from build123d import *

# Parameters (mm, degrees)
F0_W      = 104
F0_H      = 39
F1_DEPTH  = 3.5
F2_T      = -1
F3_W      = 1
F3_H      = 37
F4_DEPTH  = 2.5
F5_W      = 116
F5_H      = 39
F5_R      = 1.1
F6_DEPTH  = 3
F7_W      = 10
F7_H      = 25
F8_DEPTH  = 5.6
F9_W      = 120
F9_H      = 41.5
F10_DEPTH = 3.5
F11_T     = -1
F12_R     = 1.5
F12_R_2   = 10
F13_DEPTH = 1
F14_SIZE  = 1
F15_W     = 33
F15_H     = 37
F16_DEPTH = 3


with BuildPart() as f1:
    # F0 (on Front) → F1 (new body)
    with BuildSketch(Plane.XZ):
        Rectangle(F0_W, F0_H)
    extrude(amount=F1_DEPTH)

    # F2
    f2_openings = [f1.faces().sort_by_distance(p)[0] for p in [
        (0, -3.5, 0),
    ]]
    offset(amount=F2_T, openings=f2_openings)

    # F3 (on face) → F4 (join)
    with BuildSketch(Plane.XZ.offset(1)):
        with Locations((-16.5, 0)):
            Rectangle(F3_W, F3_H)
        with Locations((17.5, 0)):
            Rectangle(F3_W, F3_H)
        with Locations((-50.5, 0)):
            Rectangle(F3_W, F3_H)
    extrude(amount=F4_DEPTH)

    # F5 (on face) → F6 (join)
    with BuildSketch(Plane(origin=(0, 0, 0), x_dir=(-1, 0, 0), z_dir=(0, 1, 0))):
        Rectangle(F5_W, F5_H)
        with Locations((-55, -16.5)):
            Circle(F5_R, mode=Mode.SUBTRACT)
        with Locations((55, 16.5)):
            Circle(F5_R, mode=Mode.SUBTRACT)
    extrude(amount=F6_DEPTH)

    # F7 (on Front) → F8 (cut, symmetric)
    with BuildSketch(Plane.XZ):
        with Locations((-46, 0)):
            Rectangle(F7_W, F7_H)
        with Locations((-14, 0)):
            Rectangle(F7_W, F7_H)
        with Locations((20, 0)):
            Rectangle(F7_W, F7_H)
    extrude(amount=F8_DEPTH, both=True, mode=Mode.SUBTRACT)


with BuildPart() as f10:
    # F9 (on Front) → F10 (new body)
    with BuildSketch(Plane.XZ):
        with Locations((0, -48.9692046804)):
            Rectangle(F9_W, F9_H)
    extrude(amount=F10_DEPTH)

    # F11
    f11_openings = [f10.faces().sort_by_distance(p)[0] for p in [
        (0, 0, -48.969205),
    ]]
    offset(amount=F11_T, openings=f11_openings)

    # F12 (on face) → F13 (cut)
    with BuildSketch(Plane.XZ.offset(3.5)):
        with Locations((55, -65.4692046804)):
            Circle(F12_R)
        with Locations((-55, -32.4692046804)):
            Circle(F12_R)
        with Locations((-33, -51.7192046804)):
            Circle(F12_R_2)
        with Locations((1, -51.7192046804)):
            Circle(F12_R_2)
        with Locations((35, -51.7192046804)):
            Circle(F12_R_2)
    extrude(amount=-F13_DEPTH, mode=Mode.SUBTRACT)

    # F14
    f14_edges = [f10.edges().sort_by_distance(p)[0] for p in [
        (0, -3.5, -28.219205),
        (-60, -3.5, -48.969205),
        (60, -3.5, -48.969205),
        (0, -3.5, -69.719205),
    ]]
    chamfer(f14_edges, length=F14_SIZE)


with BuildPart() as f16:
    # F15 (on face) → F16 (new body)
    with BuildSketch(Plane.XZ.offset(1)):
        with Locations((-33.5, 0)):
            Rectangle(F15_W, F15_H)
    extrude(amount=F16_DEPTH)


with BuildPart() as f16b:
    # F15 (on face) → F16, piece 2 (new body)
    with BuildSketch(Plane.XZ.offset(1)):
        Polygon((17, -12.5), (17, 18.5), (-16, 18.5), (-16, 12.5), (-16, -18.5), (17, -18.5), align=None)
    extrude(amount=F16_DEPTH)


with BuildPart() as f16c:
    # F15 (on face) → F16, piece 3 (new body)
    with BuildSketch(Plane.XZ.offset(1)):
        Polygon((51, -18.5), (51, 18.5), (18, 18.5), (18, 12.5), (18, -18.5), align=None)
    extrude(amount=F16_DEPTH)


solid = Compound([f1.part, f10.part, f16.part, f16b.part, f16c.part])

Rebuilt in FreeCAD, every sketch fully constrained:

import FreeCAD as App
import Part
import Sketcher
from FreeCAD import Vector


def edges_at(feature, points):
    """Names of the edges that pass closest to the given points."""
    edges = feature.Shape.Edges
    near = lambda p: min(range(len(edges)), key=lambda i: edges[i].distToShape(Part.Vertex(*p))[0])
    return sorted({f"Edge{near(p) + 1}" for p in points})


def faces_at(feature, points):
    """Names of the faces that lie closest to the given points."""
    faces = feature.Shape.Faces
    near = lambda p: min(range(len(faces)), key=lambda i: faces[i].distToShape(Part.Vertex(*p))[0])
    return sorted({f"Face{near(p) + 1}" for p in points})

doc = App.newDocument("Part")
params = doc.addObject("Spreadsheet::Sheet", "Params")
for row, (alias, value) in enumerate([
    ("sketch1_width", "104 mm"),
    ("sketch1_height", "39 mm"),
    ("pad1_length", "3.5 mm"),
    ("thickness_wall", "1 mm"),
    ("sketch2_width", "1 mm"),
    ("sketch2_height", "37 mm"),
    ("pad2_length", "2.5 mm"),
    ("sketch3_diameter", "2.2 mm"),
    ("sketch3_width", "116 mm"),
    ("sketch3_height", "39 mm"),
    ("pad3_length", "3 mm"),
    ("sketch4_width", "10 mm"),
    ("sketch4_height", "25 mm"),
    ("pocket1_length", "11.2 mm"),
    ("sketch5_width", "120 mm"),
    ("sketch5_height", "41.5 mm"),
    ("pad4_length", "3.5 mm"),
    ("thickness2_wall", "1 mm"),
    ("sketch6_diameter", "3 mm"),
    ("sketch6_diameter2", "20 mm"),
    ("pocket2_length", "1 mm"),
    ("chamfer_size", "1 mm"),
    ("sketch7_width", "33 mm"),
    ("sketch7_height", "37 mm"),
    ("pad5_length", "3 mm"),
    ("sketch8_width", "33 mm"),
    ("sketch8_height", "37 mm"),
    ("pad6_length", "3 mm"),
    ("sketch9_width", "33 mm"),
    ("sketch9_height", "37 mm"),
    ("pad7_length", "3 mm"),
], start=1):
    params.set(f"A{row}", alias)
    params.set(f"B{row}", "=" + value)
    params.setAlias(f"B{row}", alias)

body = doc.addObject("PartDesign::Body", "Body")

# Sketch on XZ plane
sketch1 = doc.addObject("Sketcher::SketchObject", "Sketch")
body.addObject(sketch1)
sketch1.AttachmentSupport = (doc.XZ_Plane, [""])
sketch1.MapMode = "FlatFace"
sketch1.addGeometry([
    Part.LineSegment(Vector(-52, 20, 0), Vector(-52, -20, 0)),
    Part.LineSegment(Vector(-52, -20, 0), Vector(52, -20, 0)),
    Part.LineSegment(Vector(52, -20, 0), Vector(52, 20, 0)),
    Part.LineSegment(Vector(52, 20, 0), Vector(-52, 20, 0)),
], False)
sketch1.addConstraint([
    Sketcher.Constraint("Coincident", 0, 2, 1, 1),
    Sketcher.Constraint("Coincident", 1, 2, 2, 1),
    Sketcher.Constraint("Coincident", 2, 2, 3, 1),
    Sketcher.Constraint("Coincident", 3, 2, 0, 1),
    Sketcher.Constraint("Vertical", 0),
    Sketcher.Constraint("Horizontal", 1),
    Sketcher.Constraint("Vertical", 2),
    Sketcher.Constraint("Horizontal", 3),
    Sketcher.Constraint("Symmetric", 0, 2, 2, 2, -1, 1),
    Sketcher.Constraint("DistanceX", 1, 1, 1, 2, 104.0),
    Sketcher.Constraint("DistanceY", 0, 2, 0, 1, 39.0),
])
sketch1.setExpression("Constraints[9]", "Params.sketch1_width")
sketch1.setExpression("Constraints[10]", "Params.sketch1_height")
pad1 = doc.addObject("PartDesign::Pad", "Pad")
body.addObject(pad1)
pad1.Profile = sketch1
pad1.setExpression("Length", "Params.pad1_length")
doc.recompute()

thickness = doc.addObject("PartDesign::Thickness", "Thickness")
body.addObject(thickness)
thickness.Base = (pad1, faces_at(pad1, [(0, -3.5, 0)]))
thickness.setExpression("Value", "Params.thickness_wall")
thickness.Reversed = True
thickness.Join = "Arc"

# Sketch on XZ plane
sketch2 = doc.addObject("Sketcher::SketchObject", "Sketch001")
body.addObject(sketch2)
sketch2.AttachmentSupport = (doc.XZ_Plane, [""])
sketch2.MapMode = "FlatFace"
sketch2.AttachmentOffset = App.Placement(Vector(0, 0, 1), App.Rotation())
sketch2.addGeometry([
    Part.LineSegment(Vector(-17, 18.5, 0), Vector(-17, -18.5, 0)),  # 0
    Part.LineSegment(Vector(-17, -18.5, 0), Vector(-16, -18.5, 0)),  # 1
    Part.LineSegment(Vector(-16, -18.5, 0), Vector(-16, 18.5, 0)),  # 2
    Part.LineSegment(Vector(-16, 18.5, 0), Vector(-17, 18.5, 0)),  # 3
    Part.LineSegment(Vector(17, 18.5, 0), Vector(17, -18.5, 0)),  # 4
    Part.LineSegment(Vector(17, -18.5, 0), Vector(18, -18.5, 0)),  # 5
    Part.LineSegment(Vector(18, -18.5, 0), Vector(18, 18.5, 0)),  # 6
    Part.LineSegment(Vector(18, 18.5, 0), Vector(17, 18.5, 0)),  # 7
    Part.LineSegment(Vector(-51, 18.5, 0), Vector(-51, -18.5, 0)),  # 8
    Part.LineSegment(Vector(-51, -18.5, 0), Vector(-50, -18.5, 0)),  # 9
    Part.LineSegment(Vector(-50, -18.5, 0), Vector(-50, 18.5, 0)),  # 10
    Part.LineSegment(Vector(-50, 18.5, 0), Vector(-51, 18.5, 0)),  # 11
], False)
sketch2.addConstraint([
    Sketcher.Constraint("Coincident", 0, 2, 1, 1),
    Sketcher.Constraint("Coincident", 1, 2, 2, 1),
    Sketcher.Constraint("Coincident", 2, 2, 3, 1),
    Sketcher.Constraint("Coincident", 3, 2, 0, 1),
    Sketcher.Constraint("Coincident", 4, 2, 5, 1),
    Sketcher.Constraint("Coincident", 5, 2, 6, 1),
    Sketcher.Constraint("Coincident", 6, 2, 7, 1),
    Sketcher.Constraint("Coincident", 7, 2, 4, 1),
    Sketcher.Constraint("Coincident", 8, 2, 9, 1),
    Sketcher.Constraint("Coincident", 9, 2, 10, 1),
    Sketcher.Constraint("Coincident", 10, 2, 11, 1),
    Sketcher.Constraint("Coincident", 11, 2, 8, 1),
    Sketcher.Constraint("Vertical", 0),
    Sketcher.Constraint("Horizontal", 1),
    Sketcher.Constraint("Vertical", 2),
    Sketcher.Constraint("Horizontal", 3),
    Sketcher.Constraint("Vertical", 4),
    Sketcher.Constraint("Horizontal", 5),
    Sketcher.Constraint("Vertical", 6),
    Sketcher.Constraint("Horizontal", 7),
    Sketcher.Constraint("Vertical", 8),
    Sketcher.Constraint("Horizontal", 9),
    Sketcher.Constraint("Vertical", 10),
    Sketcher.Constraint("Horizontal", 11),
    Sketcher.Constraint("Symmetric", 3, 2, 4, 2, -1, 1),
    Sketcher.Constraint("Horizontal", 1, 2, 4, 2),
    Sketcher.Constraint("Horizontal", 3, 2, 6, 2),
    Sketcher.Constraint("Horizontal", 5, 2, 8, 2),
    Sketcher.Constraint("Horizontal", 7, 2, 10, 2),
    Sketcher.Constraint("Equal", 3, 5),
    Sketcher.Constraint("Equal", 7, 9),
    Sketcher.Constraint("DistanceX", 1, 1, 1, 2, 1.0),
    Sketcher.Constraint("DistanceY", 0, 2, 0, 1, 37.0),
    Sketcher.Constraint("DistanceX", 0, 2, -1, 1, 17.0),
    Sketcher.Constraint("DistanceX", 8, 2, -1, 1, 51.0),
])
sketch2.setExpression("Constraints[31]", "Params.sketch2_width")
sketch2.setExpression("Constraints[32]", "Params.sketch2_height")
pad2 = doc.addObject("PartDesign::Pad", "Pad001")
body.addObject(pad2)
pad2.Profile = sketch2
pad2.setExpression("Length", "Params.pad2_length")

# Sketch on XZ plane
sketch3 = doc.addObject("Sketcher::SketchObject", "Sketch002")
body.addObject(sketch3)
sketch3.AttachmentSupport = (doc.XZ_Plane, [""])
sketch3.MapMode = "FlatFace"
sketch3.addGeometry([
    Part.LineSegment(Vector(58, 19.5, 0), Vector(58, -19.5, 0)),  # 0
    Part.LineSegment(Vector(58, -19.5, 0), Vector(-58, -19.5, 0)),  # 1
    Part.LineSegment(Vector(-58, -19.5, 0), Vector(-58, 19.5, 0)),  # 2
    Part.LineSegment(Vector(-58, 19.5, 0), Vector(58, 19.5, 0)),  # 3
    Part.Circle(Vector(55, -16.5, 0), Vector(0, 0, 1), 1.1),  # 4
    Part.Circle(Vector(-55, 16.5, 0), Vector(0, 0, 1), 1.1),  # 5
], False)
sketch3.addConstraint([
    Sketcher.Constraint("Coincident", 0, 2, 1, 1),
    Sketcher.Constraint("Coincident", 1, 2, 2, 1),
    Sketcher.Constraint("Coincident", 2, 2, 3, 1),
    Sketcher.Constraint("Coincident", 3, 2, 0, 1),
    Sketcher.Constraint("Vertical", 0),
    Sketcher.Constraint("Horizontal", 1),
    Sketcher.Constraint("Vertical", 2),
    Sketcher.Constraint("Horizontal", 3),
    Sketcher.Constraint("Equal", 4, 5),
    Sketcher.Constraint("Symmetric", 4, 3, 5, 3, -1, 1),
    Sketcher.Constraint("Symmetric", 0, 2, 2, 2, -1, 1),
    Sketcher.Constraint("Diameter", 4, 2.2),
    Sketcher.Constraint("DistanceX", 1, 2, 1, 1, 116.0),
    Sketcher.Constraint("DistanceY", 0, 2, 0, 1, 39.0),
    Sketcher.Constraint("DistanceX", -1, 1, 4, 3, 55.0),
    Sketcher.Constraint("DistanceY", 4, 3, 5, 3, 33.0),
])
sketch3.setExpression("Constraints[11]", "Params.sketch3_diameter")
sketch3.setExpression("Constraints[12]", "Params.sketch3_width")
sketch3.setExpression("Constraints[13]", "Params.sketch3_height")
pad3 = doc.addObject("PartDesign::Pad", "Pad002")
body.addObject(pad3)
pad3.Profile = sketch3
pad3.setExpression("Length", "Params.pad3_length")
pad3.Reversed = True

# Sketch on XZ plane
sketch4 = doc.addObject("Sketcher::SketchObject", "Sketch003")
body.addObject(sketch4)
sketch4.AttachmentSupport = (doc.XZ_Plane, [""])
sketch4.MapMode = "FlatFace"
sketch4.addGeometry([
    Part.LineSegment(Vector(-51, 12, 0), Vector(-51, -12, 0)),  # 0
    Part.LineSegment(Vector(-51, -12, 0), Vector(-41, -12, 0)),  # 1
    Part.LineSegment(Vector(-41, -12, 0), Vector(-41, 12, 0)),  # 2
    Part.LineSegment(Vector(-41, 12, 0), Vector(-51, 12, 0)),  # 3
    Part.LineSegment(Vector(-19, 12, 0), Vector(-19, -12, 0)),  # 4
    Part.LineSegment(Vector(-19, -12, 0), Vector(-9, -12, 0)),  # 5
    Part.LineSegment(Vector(-9, -12, 0), Vector(-9, 12, 0)),  # 6
    Part.LineSegment(Vector(-9, 12, 0), Vector(-19, 12, 0)),  # 7
    Part.LineSegment(Vector(15, 12, 0), Vector(15, -12, 0)),  # 8
    Part.LineSegment(Vector(15, -12, 0), Vector(25, -12, 0)),  # 9
    Part.LineSegment(Vector(25, -12, 0), Vector(25, 12, 0)),  # 10
    Part.LineSegment(Vector(25, 12, 0), Vector(15, 12, 0)),  # 11
], False)
sketch4.addConstraint([
    Sketcher.Constraint("Coincident", 0, 2, 1, 1),
    Sketcher.Constraint("Coincident", 1, 2, 2, 1),
    Sketcher.Constraint("Coincident", 2, 2, 3, 1),
    Sketcher.Constraint("Coincident", 3, 2, 0, 1),
    Sketcher.Constraint("Coincident", 4, 2, 5, 1),
    Sketcher.Constraint("Coincident", 5, 2, 6, 1),
    Sketcher.Constraint("Coincident", 6, 2, 7, 1),
    Sketcher.Constraint("Coincident", 7, 2, 4, 1),
    Sketcher.Constraint("Coincident", 8, 2, 9, 1),
    Sketcher.Constraint("Coincident", 9, 2, 10, 1),
    Sketcher.Constraint("Coincident", 10, 2, 11, 1),
    Sketcher.Constraint("Coincident", 11, 2, 8, 1),
    Sketcher.Constraint("Vertical", 0),
    Sketcher.Constraint("Horizontal", 1),
    Sketcher.Constraint("Vertical", 2),
    Sketcher.Constraint("Horizontal", 3),
    Sketcher.Constraint("Vertical", 4),
    Sketcher.Constraint("Horizontal", 5),
    Sketcher.Constraint("Vertical", 6),
    Sketcher.Constraint("Horizontal", 7),
    Sketcher.Constraint("Vertical", 8),
    Sketcher.Constraint("Horizontal", 9),
    Sketcher.Constraint("Vertical", 10),
    Sketcher.Constraint("Horizontal", 11),
    Sketcher.Constraint("Horizontal", 1, 2, 4, 2),
    Sketcher.Constraint("Horizontal", 3, 2, 6, 2),
    Sketcher.Constraint("Horizontal", 5, 2, 8, 2),
    Sketcher.Constraint("Horizontal", 7, 2, 10, 2),
    Sketcher.Constraint("Equal", 3, 5),
    Sketcher.Constraint("Equal", 7, 9),
    Sketcher.Constraint("DistanceX", 1, 1, 1, 2, 10.0),
    Sketcher.Constraint("DistanceY", 0, 2, 0, 1, 25.0),
    Sketcher.Constraint("DistanceX", 0, 2, -1, 1, 51.0),
    Sketcher.Constraint("DistanceX", 4, 2, -1, 1, 19.0),
    Sketcher.Constraint("DistanceX", -1, 1, 8, 2, 15.0),
    Sketcher.Constraint("DistanceY", 0, 2, -1, 1, 12.5),
])
sketch4.setExpression("Constraints[30]", "Params.sketch4_width")
sketch4.setExpression("Constraints[31]", "Params.sketch4_height")
pocket1 = doc.addObject("PartDesign::Pocket", "Pocket")
body.addObject(pocket1)
pocket1.Profile = sketch4
pocket1.setExpression("Length", "Params.pocket1_length")
pocket1.Midplane = True
body2 = doc.addObject("PartDesign::Body", "Body001")

# Sketch on XZ plane
sketch5 = doc.addObject("Sketcher::SketchObject", "Sketch004")
body2.addObject(sketch5)
sketch5.AttachmentSupport = (doc.getObject("XZ_Plane001"), [""])
sketch5.MapMode = "FlatFace"
sketch5.addGeometry([
    Part.LineSegment(Vector(-60, -28, 0), Vector(-60, -70, 0)),
    Part.LineSegment(Vector(-60, -70, 0), Vector(60, -70, 0)),
    Part.LineSegment(Vector(60, -70, 0), Vector(60, -28, 0)),
    Part.LineSegment(Vector(60, -28, 0), Vector(-60, -28, 0)),
], False)
sketch5.addConstraint([
    Sketcher.Constraint("Coincident", 0, 2, 1, 1),
    Sketcher.Constraint("Coincident", 1, 2, 2, 1),
    Sketcher.Constraint("Coincident", 2, 2, 3, 1),
    Sketcher.Constraint("Coincident", 3, 2, 0, 1),
    Sketcher.Constraint("Vertical", 0),
    Sketcher.Constraint("Horizontal", 1),
    Sketcher.Constraint("Vertical", 2),
    Sketcher.Constraint("Horizontal", 3),
    Sketcher.Constraint("DistanceX", 1, 1, 1, 2, 120.0),
    Sketcher.Constraint("DistanceY", 0, 2, 0, 1, 41.5),
    Sketcher.Constraint("DistanceX", 0, 2, -1, 1, 60.0),
    Sketcher.Constraint("DistanceY", 0, 2, -1, 1, 69.719205),
])
sketch5.setExpression("Constraints[8]", "Params.sketch5_width")
sketch5.setExpression("Constraints[9]", "Params.sketch5_height")
pad4 = doc.addObject("PartDesign::Pad", "Pad003")
body2.addObject(pad4)
pad4.Profile = sketch5
pad4.setExpression("Length", "Params.pad4_length")
doc.recompute()

thickness2 = doc.addObject("PartDesign::Thickness", "Thickness001")
body2.addObject(thickness2)
thickness2.Base = (pad4, faces_at(pad4, [(0, 0, -48.969)]))
thickness2.setExpression("Value", "Params.thickness2_wall")
thickness2.Reversed = True
thickness2.Join = "Arc"

# Sketch on XZ plane
sketch6 = doc.addObject("Sketcher::SketchObject", "Sketch005")
body2.addObject(sketch6)
sketch6.AttachmentSupport = (doc.getObject("XZ_Plane001"), [""])
sketch6.MapMode = "FlatFace"
sketch6.AttachmentOffset = App.Placement(Vector(0, 0, 3.5), App.Rotation())
sketch6.addGeometry([
    Part.Circle(Vector(55, -65.5, 0), Vector(0, 0, 1), 1.5),  # 0
    Part.Circle(Vector(-55, -32.5, 0), Vector(0, 0, 1), 1.5),  # 1
    Part.Circle(Vector(-33, -51.7, 0), Vector(0, 0, 1), 10),  # 2
    Part.Circle(Vector(1, -51.7, 0), Vector(0, 0, 1), 10),  # 3
    Part.Circle(Vector(35, -51.7, 0), Vector(0, 0, 1), 10),  # 4
], False)
sketch6.addConstraint([
    Sketcher.Constraint("Equal", 0, 1),
    Sketcher.Constraint("Equal", 2, 3),
    Sketcher.Constraint("Equal", 3, 4),
    Sketcher.Constraint("Horizontal", 2, 3, 3, 3),
    Sketcher.Constraint("Horizontal", 3, 3, 4, 3),
    Sketcher.Constraint("Diameter", 0, 3.0),
    Sketcher.Constraint("Diameter", 2, 20.0),
    Sketcher.Constraint("DistanceX", -1, 1, 0, 3, 55.0),
    Sketcher.Constraint("DistanceX", 1, 3, -1, 1, 55.0),
    Sketcher.Constraint("DistanceX", 2, 3, -1, 1, 33.0),
    Sketcher.Constraint("DistanceX", -1, 1, 3, 3, 1.0),
    Sketcher.Constraint("DistanceX", -1, 1, 4, 3, 35.0),
    Sketcher.Constraint("DistanceY", 0, 3, 1, 3, 33.0),
    Sketcher.Constraint("DistanceY", 2, 3, 1, 3, 19.25),
    Sketcher.Constraint("DistanceY", 0, 3, -1, 1, 65.469205),
])
sketch6.setExpression("Constraints[5]", "Params.sketch6_diameter")
sketch6.setExpression("Constraints[6]", "Params.sketch6_diameter2")
pocket2 = doc.addObject("PartDesign::Pocket", "Pocket001")
body2.addObject(pocket2)
pocket2.Profile = sketch6
pocket2.setExpression("Length", "Params.pocket2_length")
doc.recompute()

chamfer = doc.addObject("PartDesign::Chamfer", "Chamfer")
body2.addObject(chamfer)
chamfer.Base = (pocket2, edges_at(pocket2, [
    (0, -3.5, -28.219),
    (-60, -3.5, -48.969),
    (60, -3.5, -48.969),
    (0, -3.5, -69.719),
]))
chamfer.setExpression("Size", "Params.chamfer_size")
body3 = doc.addObject("PartDesign::Body", "Body002")

# Sketch on XZ plane
sketch7 = doc.addObject("Sketcher::SketchObject", "Sketch006")
body3.addObject(sketch7)
sketch7.AttachmentSupport = (doc.getObject("XZ_Plane002"), [""])
sketch7.MapMode = "FlatFace"
sketch7.AttachmentOffset = App.Placement(Vector(0, 0, 1), App.Rotation())
sketch7.addGeometry([
    Part.LineSegment(Vector(-50, 18, 0), Vector(-50, -18, 0)),
    Part.LineSegment(Vector(-50, -18, 0), Vector(-17, -18, 0)),
    Part.LineSegment(Vector(-17, -18, 0), Vector(-17, 18, 0)),
    Part.LineSegment(Vector(-17, 18, 0), Vector(-50, 18, 0)),
], False)
sketch7.addConstraint([
    Sketcher.Constraint("Coincident", 0, 2, 1, 1),
    Sketcher.Constraint("Coincident", 1, 2, 2, 1),
    Sketcher.Constraint("Coincident", 2, 2, 3, 1),
    Sketcher.Constraint("Coincident", 3, 2, 0, 1),
    Sketcher.Constraint("Vertical", 0),
    Sketcher.Constraint("Horizontal", 1),
    Sketcher.Constraint("Vertical", 2),
    Sketcher.Constraint("Horizontal", 3),
    Sketcher.Constraint("DistanceX", 1, 1, 1, 2, 33.0),
    Sketcher.Constraint("DistanceY", 0, 2, 0, 1, 37.0),
    Sketcher.Constraint("DistanceX", 0, 2, -1, 1, 50.0),
    Sketcher.Constraint("DistanceY", 0, 2, -1, 1, 18.5),
])
sketch7.setExpression("Constraints[8]", "Params.sketch7_width")
sketch7.setExpression("Constraints[9]", "Params.sketch7_height")
pad5 = doc.addObject("PartDesign::Pad", "Pad004")
body3.addObject(pad5)
pad5.Profile = sketch7
pad5.setExpression("Length", "Params.pad5_length")
body4 = doc.addObject("PartDesign::Body", "Body003")

# Sketch on XZ plane
sketch8 = doc.addObject("Sketcher::SketchObject", "Sketch007")
body4.addObject(sketch8)
sketch8.AttachmentSupport = (doc.getObject("XZ_Plane003"), [""])
sketch8.MapMode = "FlatFace"
sketch8.AttachmentOffset = App.Placement(Vector(0, 0, 1), App.Rotation())
sketch8.addGeometry([
    Part.LineSegment(Vector(17, 18, 0), Vector(-16, 18, 0)),
    Part.LineSegment(Vector(-16, 18, 0), Vector(-16, -18, 0)),
    Part.LineSegment(Vector(-16, -18, 0), Vector(17, -18, 0)),
    Part.LineSegment(Vector(17, -18, 0), Vector(17, 18, 0)),
], False)
sketch8.addConstraint([
    Sketcher.Constraint("Coincident", 0, 2, 1, 1),
    Sketcher.Constraint("Coincident", 1, 2, 2, 1),
    Sketcher.Constraint("Coincident", 2, 2, 3, 1),
    Sketcher.Constraint("Coincident", 3, 2, 0, 1),
    Sketcher.Constraint("Horizontal", 0),
    Sketcher.Constraint("Vertical", 1),
    Sketcher.Constraint("Horizontal", 2),
    Sketcher.Constraint("Vertical", 3),
    Sketcher.Constraint("DistanceX", 0, 2, 0, 1, 33.0),
    Sketcher.Constraint("DistanceY", 1, 2, 1, 1, 37.0),
    Sketcher.Constraint("DistanceX", 0, 2, -1, 1, 16.0),
    Sketcher.Constraint("DistanceY", -1, 1, 0, 2, 18.5),
])
sketch8.setExpression("Constraints[8]", "Params.sketch8_width")
sketch8.setExpression("Constraints[9]", "Params.sketch8_height")
pad6 = doc.addObject("PartDesign::Pad", "Pad005")
body4.addObject(pad6)
pad6.Profile = sketch8
pad6.setExpression("Length", "Params.pad6_length")
body5 = doc.addObject("PartDesign::Body", "Body004")

# Sketch on XZ plane
sketch9 = doc.addObject("Sketcher::SketchObject", "Sketch008")
body5.addObject(sketch9)
sketch9.AttachmentSupport = (doc.getObject("XZ_Plane004"), [""])
sketch9.MapMode = "FlatFace"
sketch9.AttachmentOffset = App.Placement(Vector(0, 0, 1), App.Rotation())
sketch9.addGeometry([
    Part.LineSegment(Vector(51, -18, 0), Vector(51, 18, 0)),
    Part.LineSegment(Vector(51, 18, 0), Vector(18, 18, 0)),
    Part.LineSegment(Vector(18, 18, 0), Vector(18, -18, 0)),
    Part.LineSegment(Vector(18, -18, 0), Vector(51, -18, 0)),
], False)
sketch9.addConstraint([
    Sketcher.Constraint("Coincident", 0, 2, 1, 1),
    Sketcher.Constraint("Coincident", 1, 2, 2, 1),
    Sketcher.Constraint("Coincident", 2, 2, 3, 1),
    Sketcher.Constraint("Coincident", 3, 2, 0, 1),
    Sketcher.Constraint("Vertical", 0),
    Sketcher.Constraint("Horizontal", 1),
    Sketcher.Constraint("Vertical", 2),
    Sketcher.Constraint("Horizontal", 3),
    Sketcher.Constraint("DistanceX", 1, 2, 1, 1, 33.0),
    Sketcher.Constraint("DistanceY", 0, 1, 0, 2, 37.0),
    Sketcher.Constraint("DistanceX", -1, 1, 0, 2, 51.0),
    Sketcher.Constraint("DistanceY", -1, 1, 0, 2, 18.5),
])
sketch9.setExpression("Constraints[8]", "Params.sketch9_width")
sketch9.setExpression("Constraints[9]", "Params.sketch9_height")
pad7 = doc.addObject("PartDesign::Pad", "Pad006")
body5.addObject(pad7)
pad7.Profile = sketch9
pad7.setExpression("Length", "Params.pad7_length")

doc.recompute()
